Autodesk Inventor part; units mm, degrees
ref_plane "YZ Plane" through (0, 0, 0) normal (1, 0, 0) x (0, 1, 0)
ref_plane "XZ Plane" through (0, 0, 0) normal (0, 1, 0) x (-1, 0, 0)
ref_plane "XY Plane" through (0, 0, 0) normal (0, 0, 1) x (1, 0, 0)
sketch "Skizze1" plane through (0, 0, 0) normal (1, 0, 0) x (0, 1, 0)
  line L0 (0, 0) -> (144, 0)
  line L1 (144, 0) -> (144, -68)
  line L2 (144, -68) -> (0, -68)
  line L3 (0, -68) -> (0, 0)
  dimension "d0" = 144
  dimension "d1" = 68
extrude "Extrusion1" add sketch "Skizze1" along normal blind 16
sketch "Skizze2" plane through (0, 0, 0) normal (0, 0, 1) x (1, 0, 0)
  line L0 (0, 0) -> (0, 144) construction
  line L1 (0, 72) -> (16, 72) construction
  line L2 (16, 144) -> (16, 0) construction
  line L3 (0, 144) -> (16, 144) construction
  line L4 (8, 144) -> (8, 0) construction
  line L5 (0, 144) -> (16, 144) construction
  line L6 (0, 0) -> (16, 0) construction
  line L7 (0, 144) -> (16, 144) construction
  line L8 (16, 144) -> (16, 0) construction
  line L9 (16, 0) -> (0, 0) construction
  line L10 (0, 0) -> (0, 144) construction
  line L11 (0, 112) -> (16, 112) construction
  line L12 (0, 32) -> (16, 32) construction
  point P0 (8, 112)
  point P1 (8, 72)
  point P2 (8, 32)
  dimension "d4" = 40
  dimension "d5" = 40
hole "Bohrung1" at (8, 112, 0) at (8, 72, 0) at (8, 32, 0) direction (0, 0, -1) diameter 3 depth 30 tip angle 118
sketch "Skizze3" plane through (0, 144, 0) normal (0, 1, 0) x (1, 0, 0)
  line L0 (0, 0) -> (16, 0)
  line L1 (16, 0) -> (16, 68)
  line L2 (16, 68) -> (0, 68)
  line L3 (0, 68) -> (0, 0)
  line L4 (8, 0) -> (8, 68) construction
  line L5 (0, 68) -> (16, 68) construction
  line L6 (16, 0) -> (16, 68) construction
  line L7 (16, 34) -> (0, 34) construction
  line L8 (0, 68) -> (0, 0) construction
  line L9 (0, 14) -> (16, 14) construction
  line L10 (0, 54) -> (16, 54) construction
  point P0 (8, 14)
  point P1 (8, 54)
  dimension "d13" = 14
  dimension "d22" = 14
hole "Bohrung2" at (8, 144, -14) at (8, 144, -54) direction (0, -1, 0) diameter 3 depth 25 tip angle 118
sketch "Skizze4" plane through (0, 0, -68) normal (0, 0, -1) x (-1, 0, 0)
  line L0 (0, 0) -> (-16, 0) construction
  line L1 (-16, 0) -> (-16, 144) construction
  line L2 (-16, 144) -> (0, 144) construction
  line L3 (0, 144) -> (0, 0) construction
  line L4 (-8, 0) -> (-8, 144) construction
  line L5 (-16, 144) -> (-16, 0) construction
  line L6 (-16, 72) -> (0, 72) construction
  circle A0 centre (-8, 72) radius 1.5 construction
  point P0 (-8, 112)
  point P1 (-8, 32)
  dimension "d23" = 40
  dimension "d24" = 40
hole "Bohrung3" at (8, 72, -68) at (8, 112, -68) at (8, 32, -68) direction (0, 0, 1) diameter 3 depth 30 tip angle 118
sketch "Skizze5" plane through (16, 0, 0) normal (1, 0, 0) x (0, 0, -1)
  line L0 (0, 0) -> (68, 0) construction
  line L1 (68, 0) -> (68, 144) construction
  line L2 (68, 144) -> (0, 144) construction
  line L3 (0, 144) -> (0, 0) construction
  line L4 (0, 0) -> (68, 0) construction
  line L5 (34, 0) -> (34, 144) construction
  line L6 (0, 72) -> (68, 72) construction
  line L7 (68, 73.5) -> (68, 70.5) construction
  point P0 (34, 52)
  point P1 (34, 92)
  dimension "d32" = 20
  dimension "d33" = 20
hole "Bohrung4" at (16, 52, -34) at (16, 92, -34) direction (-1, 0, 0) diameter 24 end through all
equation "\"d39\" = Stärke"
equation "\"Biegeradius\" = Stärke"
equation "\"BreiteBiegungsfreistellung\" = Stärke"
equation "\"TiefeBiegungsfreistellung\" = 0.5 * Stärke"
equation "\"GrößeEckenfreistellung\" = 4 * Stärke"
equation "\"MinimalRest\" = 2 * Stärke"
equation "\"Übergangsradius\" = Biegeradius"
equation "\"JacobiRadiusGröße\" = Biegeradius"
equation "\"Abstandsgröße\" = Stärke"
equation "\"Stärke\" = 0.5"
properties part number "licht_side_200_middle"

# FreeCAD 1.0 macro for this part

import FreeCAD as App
import Part
import Sketcher
Q = App.Units.Quantity


def add_polygon(sketch, points):
    """Adds a closed chain of lines whose ends are joined by coincident constraints."""
    first, n = sketch.GeometryCount, len(points)
    for a, b in zip(points, points[1:] + points[:1]):
        sketch.addGeometry(Part.LineSegment(App.Vector(*a, 0), App.Vector(*b, 0)), False)
    for i in range(n):
        sketch.addConstraint(Sketcher.Constraint("Coincident", first + i, 2, first + (i + 1) % n, 1))

doc = App.newDocument("Part")
body = doc.addObject("PartDesign::Body", "Body")

sketch1 = body.newObject("Sketcher::SketchObject", "Sketch")
sketch1.AttachmentSupport = (doc.getObject("YZ_Plane"), [""])
sketch1.MapMode = "FlatFace"
add_polygon(sketch1, [(144, 0), (0, 0), (0, -68), (144, -68)])
sketch1.addConstraint(Sketcher.Constraint("Horizontal", 0))
sketch1.addConstraint(Sketcher.Constraint("Vertical", 1))
sketch1.addConstraint(Sketcher.Constraint("Horizontal", 2))
sketch1.addConstraint(Sketcher.Constraint("Vertical", 3))
sketch1.addConstraint(Sketcher.Constraint("Coincident", 0, 2, -1, 1))
sketch1.addConstraint(Sketcher.Constraint("DistanceX", 0, 2, 0, 1, Q("144 mm")))
sketch1.addConstraint(Sketcher.Constraint("DistanceY", 1, 2, 1, 1, Q("68 mm")))
pad1 = body.newObject("PartDesign::Pad", "Pad")
pad1.Profile = sketch1
pad1.Length = 16

sketch2 = body.newObject("Sketcher::SketchObject", "Sketch001")
sketch2.AttachmentSupport = (doc.getObject("XY_Plane"), [""])
sketch2.MapMode = "FlatFace"
sketch2.addGeometry(Part.Circle(App.Vector(8, 112, 0), App.Vector(0, 0, 1), 1.5), False)
sketch2.addGeometry(Part.Circle(App.Vector(8, 72, 0), App.Vector(0, 0, 1), 1.5), False)
sketch2.addGeometry(Part.Circle(App.Vector(8, 32, 0), App.Vector(0, 0, 1), 1.5), False)
sketch2.addConstraint(Sketcher.Constraint("Equal", 0, 1))
sketch2.addConstraint(Sketcher.Constraint("Equal", 1, 2))
sketch2.addConstraint(Sketcher.Constraint("Vertical", 0, 3, 1, 3))
sketch2.addConstraint(Sketcher.Constraint("Vertical", 1, 3, 2, 3))
sketch2.addConstraint(Sketcher.Constraint("Diameter", 0, Q("3 mm")))
sketch2.addConstraint(Sketcher.Constraint("DistanceX", -1, 1, 0, 3, Q("8 mm")))
sketch2.addConstraint(Sketcher.Constraint("DistanceY", -1, 1, 0, 3, Q("112 mm")))
sketch2.addConstraint(Sketcher.Constraint("DistanceY", -1, 1, 1, 3, Q("72 mm")))
sketch2.addConstraint(Sketcher.Constraint("DistanceY", -1, 1, 2, 3, Q("32 mm")))
doc.recompute()
hole = body.newObject("PartDesign::Hole", "Hole")
hole.Profile = sketch2
hole.ThreadType = "None"
hole.Diameter = 3
hole.DepthType = "Dimension"
hole.Depth = 30
hole.DrillPoint = "Angled"
hole.DrillPointAngle = 118

sketch3 = body.newObject("Sketcher::SketchObject", "Sketch002")
sketch3.AttachmentSupport = (doc.getObject("XZ_Plane"), [""])
sketch3.MapMode = "FlatFace"
sketch3.AttachmentOffset = App.Placement(App.Vector(0, 0, -144), App.Rotation())
sketch3.addGeometry(Part.Circle(App.Vector(8, -14, 0), App.Vector(0, 0, 1), 1.5), False)
sketch3.addGeometry(Part.Circle(App.Vector(8, -54, 0), App.Vector(0, 0, 1), 1.5), False)
sketch3.addConstraint(Sketcher.Constraint("Equal", 0, 1))
sketch3.addConstraint(Sketcher.Constraint("Vertical", 0, 3, 1, 3))
sketch3.addConstraint(Sketcher.Constraint("Diameter", 0, Q("3 mm")))
sketch3.addConstraint(Sketcher.Constraint("DistanceX", -1, 1, 0, 3, Q("8 mm")))
sketch3.addConstraint(Sketcher.Constraint("DistanceY", 0, 3, -1, 1, Q("14 mm")))
sketch3.addConstraint(Sketcher.Constraint("DistanceY", 1, 3, -1, 1, Q("54 mm")))
doc.recompute()
hole2 = body.newObject("PartDesign::Hole", "Hole001")
hole2.Profile = sketch3
hole2.ThreadType = "None"
hole2.Diameter = 3
hole2.DepthType = "Dimension"
hole2.Depth = 25
hole2.DrillPoint = "Angled"
hole2.DrillPointAngle = 118
hole2.Reversed = True

sketch4 = body.newObject("Sketcher::SketchObject", "Sketch003")
sketch4.AttachmentSupport = (doc.getObject("XY_Plane"), [""])
sketch4.MapMode = "FlatFace"
sketch4.AttachmentOffset = App.Placement(App.Vector(0, 0, -68), App.Rotation())
sketch4.addGeometry(Part.Circle(App.Vector(8, 72, 0), App.Vector(0, 0, 1), 1.5), False)
sketch4.addGeometry(Part.Circle(App.Vector(8, 112, 0), App.Vector(0, 0, 1), 1.5), False)
sketch4.addGeometry(Part.Circle(App.Vector(8, 32, 0), App.Vector(0, 0, 1), 1.5), False)
sketch4.addConstraint(Sketcher.Constraint("Equal", 0, 1))
sketch4.addConstraint(Sketcher.Constraint("Equal", 1, 2))
sketch4.addConstraint(Sketcher.Constraint("Vertical", 0, 3, 1, 3))
sketch4.addConstraint(Sketcher.Constraint("Vertical", 1, 3, 2, 3))
sketch4.addConstraint(Sketcher.Constraint("Diameter", 0, Q("3 mm")))
sketch4.addConstraint(Sketcher.Constraint("DistanceX", -1, 1, 0, 3, Q("8 mm")))
sketch4.addConstraint(Sketcher.Constraint("DistanceY", -1, 1, 0, 3, Q("72 mm")))
sketch4.addConstraint(Sketcher.Constraint("DistanceY", -1, 1, 1, 3, Q("112 mm")))
sketch4.addConstraint(Sketcher.Constraint("DistanceY", -1, 1, 2, 3, Q("32 mm")))
doc.recompute()
hole3 = body.newObject("PartDesign::Hole", "Hole002")
hole3.Profile = sketch4
hole3.ThreadType = "None"
hole3.Diameter = 3
hole3.DepthType = "Dimension"
hole3.Depth = 30
hole3.DrillPoint = "Angled"
hole3.DrillPointAngle = 118
hole3.Reversed = True

sketch5 = body.newObject("Sketcher::SketchObject", "Sketch004")
sketch5.AttachmentSupport = (doc.getObject("YZ_Plane"), [""])
sketch5.MapMode = "FlatFace"
sketch5.AttachmentOffset = App.Placement(App.Vector(0, 0, 16), App.Rotation())
sketch5.addGeometry(Part.Circle(App.Vector(52, -34, 0), App.Vector(0, 0, 1), 12), False)
sketch5.addGeometry(Part.Circle(App.Vector(92, -34, 0), App.Vector(0, 0, 1), 12), False)
sketch5.addConstraint(Sketcher.Constraint("Equal", 0, 1))
sketch5.addConstraint(Sketcher.Constraint("Horizontal", 0, 3, 1, 3))
sketch5.addConstraint(Sketcher.Constraint("Diameter", 0, Q("24 mm")))
sketch5.addConstraint(Sketcher.Constraint("DistanceX", -1, 1, 0, 3, Q("52 mm")))
sketch5.addConstraint(Sketcher.Constraint("DistanceY", 0, 3, -1, 1, Q("34 mm")))
sketch5.addConstraint(Sketcher.Constraint("DistanceX", -1, 1, 1, 3, Q("92 mm")))
doc.recompute()
hole4 = body.newObject("PartDesign::Hole", "Hole003")
hole4.Profile = sketch5
hole4.ThreadType = "None"
hole4.Diameter = 24
hole4.DepthType = "ThroughAll"

doc.recompute()
